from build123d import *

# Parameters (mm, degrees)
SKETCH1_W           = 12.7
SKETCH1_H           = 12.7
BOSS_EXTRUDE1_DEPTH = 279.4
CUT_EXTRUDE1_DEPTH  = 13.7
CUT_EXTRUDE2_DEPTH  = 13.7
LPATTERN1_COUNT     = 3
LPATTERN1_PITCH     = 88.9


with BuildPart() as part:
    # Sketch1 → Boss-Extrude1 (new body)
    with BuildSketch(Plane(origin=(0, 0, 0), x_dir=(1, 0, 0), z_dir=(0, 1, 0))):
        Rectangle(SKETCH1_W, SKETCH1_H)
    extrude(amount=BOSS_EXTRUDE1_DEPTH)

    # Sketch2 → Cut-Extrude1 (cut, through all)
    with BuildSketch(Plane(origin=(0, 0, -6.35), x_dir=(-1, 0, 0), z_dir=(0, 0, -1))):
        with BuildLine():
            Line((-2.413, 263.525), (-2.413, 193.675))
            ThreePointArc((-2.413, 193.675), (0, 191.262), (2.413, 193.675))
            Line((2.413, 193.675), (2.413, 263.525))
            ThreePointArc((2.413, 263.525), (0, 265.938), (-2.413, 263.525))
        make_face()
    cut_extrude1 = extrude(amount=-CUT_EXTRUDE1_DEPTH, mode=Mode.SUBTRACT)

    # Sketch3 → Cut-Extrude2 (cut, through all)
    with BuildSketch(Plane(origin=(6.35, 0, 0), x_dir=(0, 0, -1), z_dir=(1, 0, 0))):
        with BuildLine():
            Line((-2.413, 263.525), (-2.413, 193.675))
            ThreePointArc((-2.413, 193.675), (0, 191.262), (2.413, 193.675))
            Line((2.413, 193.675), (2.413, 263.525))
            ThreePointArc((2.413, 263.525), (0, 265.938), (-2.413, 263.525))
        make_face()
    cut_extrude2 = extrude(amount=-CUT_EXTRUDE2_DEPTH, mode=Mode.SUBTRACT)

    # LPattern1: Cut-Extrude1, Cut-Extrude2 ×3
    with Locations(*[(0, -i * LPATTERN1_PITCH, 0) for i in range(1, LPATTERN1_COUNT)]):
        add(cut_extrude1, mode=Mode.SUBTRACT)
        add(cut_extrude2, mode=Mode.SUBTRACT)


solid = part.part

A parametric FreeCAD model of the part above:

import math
import FreeCAD as App
import Part
import Sketcher

V = App.Vector
Q = App.Units.Quantity


def add_polygon(sketch, points):
    """Adds a closed chain of lines whose ends are joined by coincident constraints."""
    first, n = sketch.GeometryCount, len(points)
    for a, b in zip(points, points[1:] + points[:1]):
        sketch.addGeometry(Part.LineSegment(App.Vector(*a, 0), App.Vector(*b, 0)), False)
    for i in range(n):
        sketch.addConstraint(Sketcher.Constraint("Coincident", first + i, 2, first + (i + 1) % n, 1))

doc = App.newDocument("Part")
body = doc.addObject("PartDesign::Body", "Body")

# Sketch on XZ plane
sketch1 = doc.addObject("Sketcher::SketchObject", "Sketch")
body.addObject(sketch1)
sketch1.AttachmentSupport = (doc.XZ_Plane, [""])
sketch1.MapMode = "FlatFace"
add_polygon(sketch1, [(-6, -6), (-6, 6), (6, 6), (6, -6)])  # lines 0-3
sketch1.addConstraint([
    Sketcher.Constraint("Vertical", 0),
    Sketcher.Constraint("Horizontal", 1),
    Sketcher.Constraint("Vertical", 2),
    Sketcher.Constraint("Horizontal", 3),
    Sketcher.Constraint("Symmetric", 0, 2, 2, 2, -1, 1),
    Sketcher.Constraint("Equal", 3, 0),
    Sketcher.Constraint("DistanceX", 1, 1, 1, 2, Q("0.5 in")),
])
pad1 = doc.addObject("PartDesign::Pad", "Pad")
body.addObject(pad1)
pad1.Profile = sketch1
pad1.Length = Q("11 in")
pad1.Reversed = True

# Sketch on XY plane
sketch2 = doc.addObject("Sketcher::SketchObject", "Sketch001")
body.addObject(sketch2)
sketch2.AttachmentSupport = (doc.XY_Plane, [""])
sketch2.MapMode = "FlatFace"
sketch2.AttachmentOffset = App.Placement(V(0, 0, -0.25 * 25.4), App.Rotation())
sketch2.addGeometry([
    Part.LineSegment(V(2.4, 263.5, 0), V(2.4, 193.7, 0)),
    Part.ArcOfCircle(Part.Circle(V(0, 193.7, 0), V(0, 0, 1), 2.4), math.radians(180), math.radians(360)),
    Part.LineSegment(V(-2.4, 193.7, 0), V(-2.4, 263.5, 0)),
    Part.ArcOfCircle(Part.Circle(V(0, 263.5, 0), V(0, 0, 1), 2.4), math.radians(0), math.radians(180)),
], False)
sketch2.addConstraint([
    Sketcher.Constraint("Tangent", 0, 2, 1, 2),
    Sketcher.Constraint("Tangent", 1, 1, 2, 1),
    Sketcher.Constraint("Tangent", 2, 2, 3, 2),
    Sketcher.Constraint("Tangent", 3, 1, 0, 1),
    Sketcher.Constraint("Vertical", 0),
    Sketcher.Constraint("Vertical", 2),
    Sketcher.Constraint("PointOnObject", 1, 3, -2),
    Sketcher.Constraint("Radius", 1, Q("0.095 in")),
    Sketcher.Constraint("DistanceY", 0, 2, 0, 1, Q("2.75 in")),
    Sketcher.Constraint("DistanceY", -1, 1, 1, 3, Q("7.625 in")),
])
pocket1 = doc.addObject("PartDesign::Pocket", "Pocket")
body.addObject(pocket1)
pocket1.Profile = sketch2
pocket1.Type = "ThroughAll"
pocket1.Reversed = True

# Sketch on YZ plane
sketch3 = doc.addObject("Sketcher::SketchObject", "Sketch002")
body.addObject(sketch3)
sketch3.AttachmentSupport = (doc.YZ_Plane, [""])
sketch3.MapMode = "FlatFace"
sketch3.AttachmentOffset = App.Placement(V(0, 0, 0.25 * 25.4), App.Rotation())
sketch3.addGeometry([
    Part.LineSegment(V(263.5, 2.4, 0), V(193.7, 2.4, 0)),
    Part.ArcOfCircle(Part.Circle(V(193.7, 0, 0), V(0, 0, 1), 2.4), math.radians(90), math.radians(270)),
    Part.LineSegment(V(193.7, -2.4, 0), V(263.5, -2.4, 0)),
    Part.ArcOfCircle(Part.Circle(V(263.5, 0, 0), V(0, 0, 1), 2.4), math.radians(-90), math.radians(90)),
], False)
sketch3.addConstraint([
    Sketcher.Constraint("Tangent", 0, 2, 1, 1),
    Sketcher.Constraint("Tangent", 1, 2, 2, 1),
    Sketcher.Constraint("Tangent", 2, 2, 3, 1),
    Sketcher.Constraint("Tangent", 3, 2, 0, 1),
    Sketcher.Constraint("Horizontal", 0),
    Sketcher.Constraint("Horizontal", 2),
    Sketcher.Constraint("PointOnObject", 1, 3, -1),
    Sketcher.Constraint("Radius", 1, Q("0.095 in")),
    Sketcher.Constraint("DistanceX", 0, 2, 0, 1, Q("2.75 in")),
    Sketcher.Constraint("DistanceX", -1, 1, 1, 3, Q("7.625 in")),
])
pocket2 = doc.addObject("PartDesign::Pocket", "Pocket001")
body.addObject(pocket2)
pocket2.Profile = sketch3
pocket2.Type = "ThroughAll"
doc.recompute()

linearpattern = doc.addObject("PartDesign::LinearPattern", "LinearPattern")
body.addObject(linearpattern)
linearpattern.Originals = [pocket1, pocket2]
linearpattern.Direction = (doc.Y_Axis, [""])
linearpattern.Mode = "offset"
linearpattern.Offset = Q("3.5 in")
linearpattern.Occurrences = 3
linearpattern.Reversed = True
body.Tip = linearpattern

doc.recompute()
